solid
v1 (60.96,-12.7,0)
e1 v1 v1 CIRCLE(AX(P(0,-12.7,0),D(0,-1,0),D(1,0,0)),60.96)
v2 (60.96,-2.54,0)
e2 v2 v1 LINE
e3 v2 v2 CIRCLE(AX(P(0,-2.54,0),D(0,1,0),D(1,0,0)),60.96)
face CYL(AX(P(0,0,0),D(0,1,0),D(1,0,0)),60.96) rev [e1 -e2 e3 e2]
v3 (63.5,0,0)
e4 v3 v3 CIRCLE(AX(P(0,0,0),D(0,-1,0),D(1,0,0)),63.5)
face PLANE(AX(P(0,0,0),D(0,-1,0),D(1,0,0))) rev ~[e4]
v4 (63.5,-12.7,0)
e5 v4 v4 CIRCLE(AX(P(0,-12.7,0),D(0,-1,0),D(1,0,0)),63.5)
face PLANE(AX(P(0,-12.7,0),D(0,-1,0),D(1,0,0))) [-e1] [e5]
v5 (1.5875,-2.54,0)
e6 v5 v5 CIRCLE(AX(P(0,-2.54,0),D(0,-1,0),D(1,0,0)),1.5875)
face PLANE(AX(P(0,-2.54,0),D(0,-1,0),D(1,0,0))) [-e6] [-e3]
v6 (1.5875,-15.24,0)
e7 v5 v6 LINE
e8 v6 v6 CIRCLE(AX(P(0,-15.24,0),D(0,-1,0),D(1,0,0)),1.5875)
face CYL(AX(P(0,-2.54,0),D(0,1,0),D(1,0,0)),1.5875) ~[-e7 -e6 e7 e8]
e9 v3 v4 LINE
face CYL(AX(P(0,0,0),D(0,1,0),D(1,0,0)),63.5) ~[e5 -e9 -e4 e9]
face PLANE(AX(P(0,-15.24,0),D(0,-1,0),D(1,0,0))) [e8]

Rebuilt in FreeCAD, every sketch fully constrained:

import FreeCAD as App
import Part
import Sketcher
Q = App.Units.Quantity


def faces_at(feature, points):
    """Names of the faces that lie closest to the given points."""
    faces = feature.Shape.Faces
    near = lambda p: min(range(len(faces)), key=lambda i: faces[i].distToShape(Part.Vertex(*p))[0])
    return sorted({f"Face{near(p) + 1}" for p in points})

doc = App.newDocument("Part")
body = doc.addObject("PartDesign::Body", "Body")

# Sketch on XZ plane
sketch1 = doc.addObject("Sketcher::SketchObject", "Sketch")
body.addObject(sketch1)
sketch1.AttachmentSupport = (doc.XZ_Plane, [""])
sketch1.MapMode = "FlatFace"
sketch1.addGeometry(Part.Circle(App.Vector(0, 0, 0), App.Vector(0, 0, 1), 63.5), False)
sketch1.addConstraint([
    Sketcher.Constraint("Coincident", 0, 3, -1, 1),
    Sketcher.Constraint("Diameter", 0, Q("5 in")),
])
pad1 = doc.addObject("PartDesign::Pad", "Pad")
body.addObject(pad1)
pad1.Profile = sketch1
pad1.Length = Q("0.5 in")
doc.recompute()

thickness = doc.addObject("PartDesign::Thickness", "Thickness")
body.addObject(thickness)
thickness.Base = (pad1, faces_at(pad1, [(0, -12.7, 0)]))
thickness.Value = Q("0.1 in")
thickness.Reversed = True
thickness.Join = "Arc"

# Sketch on XZ plane
sketch2 = doc.addObject("Sketcher::SketchObject", "Sketch001")
body.addObject(sketch2)
sketch2.AttachmentSupport = (doc.XZ_Plane, [""])
sketch2.MapMode = "FlatFace"
sketch2.AttachmentOffset = App.Placement(App.Vector(0, 0, 0.1 * 25.4), App.Rotation())
sketch2.addGeometry(Part.Circle(App.Vector(0, 0, 0), App.Vector(0, 0, 1), 1.5875), False)
sketch2.addConstraint([
    Sketcher.Constraint("Coincident", 0, 3, -1, 1),
    Sketcher.Constraint("Diameter", 0, Q("0.125 in")),
])
pad2 = doc.addObject("PartDesign::Pad", "Pad001")
body.addObject(pad2)
pad2.Profile = sketch2
pad2.Length = Q("0.5 in")

doc.recompute()
